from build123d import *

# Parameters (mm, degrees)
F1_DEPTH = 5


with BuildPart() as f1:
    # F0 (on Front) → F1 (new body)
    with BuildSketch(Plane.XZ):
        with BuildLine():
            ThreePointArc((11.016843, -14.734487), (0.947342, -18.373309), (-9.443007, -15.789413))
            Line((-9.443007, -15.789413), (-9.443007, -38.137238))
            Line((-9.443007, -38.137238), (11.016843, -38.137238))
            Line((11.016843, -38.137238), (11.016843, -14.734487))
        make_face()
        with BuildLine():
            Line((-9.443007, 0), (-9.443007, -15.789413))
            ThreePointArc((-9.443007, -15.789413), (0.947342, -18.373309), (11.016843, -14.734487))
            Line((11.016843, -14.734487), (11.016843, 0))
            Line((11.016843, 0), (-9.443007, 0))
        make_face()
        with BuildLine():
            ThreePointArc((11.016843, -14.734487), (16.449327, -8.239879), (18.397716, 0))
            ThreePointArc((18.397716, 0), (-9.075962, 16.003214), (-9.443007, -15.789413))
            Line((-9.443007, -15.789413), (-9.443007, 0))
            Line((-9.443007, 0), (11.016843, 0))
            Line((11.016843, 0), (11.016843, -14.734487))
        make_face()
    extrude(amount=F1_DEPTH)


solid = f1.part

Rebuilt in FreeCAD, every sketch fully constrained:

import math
import FreeCAD as App
import Part
import Sketcher
from FreeCAD import Vector

doc = App.newDocument("Part")
params = doc.addObject("Spreadsheet::Sheet", "Params")
for row, (alias, value) in enumerate([
    ("pad1_length", "5 mm"),
], start=1):
    params.set(f"A{row}", alias)
    params.set(f"B{row}", "=" + value)
    params.setAlias(f"B{row}", alias)

body = doc.addObject("PartDesign::Body", "Body")

sketch1 = body.newObject("Sketcher::SketchObject", "Sketch")
sketch1.AttachmentSupport = (doc.getObject("XZ_Plane"), [""])
sketch1.MapMode = "FlatFace"
sketch1.addGeometry([
    Part.LineSegment(Vector(-9.443007, -38.137238, 0), Vector(11.016843, -38.137238, 0)),
    Part.LineSegment(Vector(11.016843, -38.137238, 0), Vector(11.016843, -14.734487, 0)),
    Part.ArcOfCircle(Part.Circle(Vector(0.000005, -0.000002, 0), Vector(0, 0, 1), 18.397711), math.radians(-53.214875), math.radians(0.000005)),
    Part.ArcOfCircle(Part.Circle(Vector(0, 0, 0), Vector(0, 0, 1), 18.397716), math.radians(0), math.radians(239.118069)),
    Part.LineSegment(Vector(-9.443007, -15.789413, 0), Vector(-9.443007, -38.137238, 0)),
], False)
sketch1.addConstraint([
    Sketcher.Constraint("Coincident", 0, 2, 1, 1),
    Sketcher.Constraint("Coincident", 1, 2, 2, 1),
    Sketcher.Constraint("Tangent", 2, 2, 3, 1),
    Sketcher.Constraint("Coincident", 3, 2, 4, 1),
    Sketcher.Constraint("Coincident", 4, 2, 0, 1),
    Sketcher.Constraint("Horizontal", 0),
    Sketcher.Constraint("Vertical", 1),
    Sketcher.Constraint("Vertical", 4),
    Sketcher.Constraint("Coincident", 2, 3, -1, 1),
    Sketcher.Constraint("PointOnObject", 2, 2, -1),
    Sketcher.Constraint("Radius", 2, 18.397711),
    Sketcher.Constraint("Radius", 3, 18.397716),
    Sketcher.Constraint("DistanceX", 0, 1, 0, 2, 20.45985),
    Sketcher.Constraint("DistanceY", 1, 1, 1, 2, 23.402751),
    Sketcher.Constraint("DistanceY", 4, 2, 4, 1, 22.347825),
])
pad1 = body.newObject("PartDesign::Pad", "Pad")
pad1.Profile = sketch1
pad1.setExpression("Length", "Params.pad1_length")

doc.recompute()
